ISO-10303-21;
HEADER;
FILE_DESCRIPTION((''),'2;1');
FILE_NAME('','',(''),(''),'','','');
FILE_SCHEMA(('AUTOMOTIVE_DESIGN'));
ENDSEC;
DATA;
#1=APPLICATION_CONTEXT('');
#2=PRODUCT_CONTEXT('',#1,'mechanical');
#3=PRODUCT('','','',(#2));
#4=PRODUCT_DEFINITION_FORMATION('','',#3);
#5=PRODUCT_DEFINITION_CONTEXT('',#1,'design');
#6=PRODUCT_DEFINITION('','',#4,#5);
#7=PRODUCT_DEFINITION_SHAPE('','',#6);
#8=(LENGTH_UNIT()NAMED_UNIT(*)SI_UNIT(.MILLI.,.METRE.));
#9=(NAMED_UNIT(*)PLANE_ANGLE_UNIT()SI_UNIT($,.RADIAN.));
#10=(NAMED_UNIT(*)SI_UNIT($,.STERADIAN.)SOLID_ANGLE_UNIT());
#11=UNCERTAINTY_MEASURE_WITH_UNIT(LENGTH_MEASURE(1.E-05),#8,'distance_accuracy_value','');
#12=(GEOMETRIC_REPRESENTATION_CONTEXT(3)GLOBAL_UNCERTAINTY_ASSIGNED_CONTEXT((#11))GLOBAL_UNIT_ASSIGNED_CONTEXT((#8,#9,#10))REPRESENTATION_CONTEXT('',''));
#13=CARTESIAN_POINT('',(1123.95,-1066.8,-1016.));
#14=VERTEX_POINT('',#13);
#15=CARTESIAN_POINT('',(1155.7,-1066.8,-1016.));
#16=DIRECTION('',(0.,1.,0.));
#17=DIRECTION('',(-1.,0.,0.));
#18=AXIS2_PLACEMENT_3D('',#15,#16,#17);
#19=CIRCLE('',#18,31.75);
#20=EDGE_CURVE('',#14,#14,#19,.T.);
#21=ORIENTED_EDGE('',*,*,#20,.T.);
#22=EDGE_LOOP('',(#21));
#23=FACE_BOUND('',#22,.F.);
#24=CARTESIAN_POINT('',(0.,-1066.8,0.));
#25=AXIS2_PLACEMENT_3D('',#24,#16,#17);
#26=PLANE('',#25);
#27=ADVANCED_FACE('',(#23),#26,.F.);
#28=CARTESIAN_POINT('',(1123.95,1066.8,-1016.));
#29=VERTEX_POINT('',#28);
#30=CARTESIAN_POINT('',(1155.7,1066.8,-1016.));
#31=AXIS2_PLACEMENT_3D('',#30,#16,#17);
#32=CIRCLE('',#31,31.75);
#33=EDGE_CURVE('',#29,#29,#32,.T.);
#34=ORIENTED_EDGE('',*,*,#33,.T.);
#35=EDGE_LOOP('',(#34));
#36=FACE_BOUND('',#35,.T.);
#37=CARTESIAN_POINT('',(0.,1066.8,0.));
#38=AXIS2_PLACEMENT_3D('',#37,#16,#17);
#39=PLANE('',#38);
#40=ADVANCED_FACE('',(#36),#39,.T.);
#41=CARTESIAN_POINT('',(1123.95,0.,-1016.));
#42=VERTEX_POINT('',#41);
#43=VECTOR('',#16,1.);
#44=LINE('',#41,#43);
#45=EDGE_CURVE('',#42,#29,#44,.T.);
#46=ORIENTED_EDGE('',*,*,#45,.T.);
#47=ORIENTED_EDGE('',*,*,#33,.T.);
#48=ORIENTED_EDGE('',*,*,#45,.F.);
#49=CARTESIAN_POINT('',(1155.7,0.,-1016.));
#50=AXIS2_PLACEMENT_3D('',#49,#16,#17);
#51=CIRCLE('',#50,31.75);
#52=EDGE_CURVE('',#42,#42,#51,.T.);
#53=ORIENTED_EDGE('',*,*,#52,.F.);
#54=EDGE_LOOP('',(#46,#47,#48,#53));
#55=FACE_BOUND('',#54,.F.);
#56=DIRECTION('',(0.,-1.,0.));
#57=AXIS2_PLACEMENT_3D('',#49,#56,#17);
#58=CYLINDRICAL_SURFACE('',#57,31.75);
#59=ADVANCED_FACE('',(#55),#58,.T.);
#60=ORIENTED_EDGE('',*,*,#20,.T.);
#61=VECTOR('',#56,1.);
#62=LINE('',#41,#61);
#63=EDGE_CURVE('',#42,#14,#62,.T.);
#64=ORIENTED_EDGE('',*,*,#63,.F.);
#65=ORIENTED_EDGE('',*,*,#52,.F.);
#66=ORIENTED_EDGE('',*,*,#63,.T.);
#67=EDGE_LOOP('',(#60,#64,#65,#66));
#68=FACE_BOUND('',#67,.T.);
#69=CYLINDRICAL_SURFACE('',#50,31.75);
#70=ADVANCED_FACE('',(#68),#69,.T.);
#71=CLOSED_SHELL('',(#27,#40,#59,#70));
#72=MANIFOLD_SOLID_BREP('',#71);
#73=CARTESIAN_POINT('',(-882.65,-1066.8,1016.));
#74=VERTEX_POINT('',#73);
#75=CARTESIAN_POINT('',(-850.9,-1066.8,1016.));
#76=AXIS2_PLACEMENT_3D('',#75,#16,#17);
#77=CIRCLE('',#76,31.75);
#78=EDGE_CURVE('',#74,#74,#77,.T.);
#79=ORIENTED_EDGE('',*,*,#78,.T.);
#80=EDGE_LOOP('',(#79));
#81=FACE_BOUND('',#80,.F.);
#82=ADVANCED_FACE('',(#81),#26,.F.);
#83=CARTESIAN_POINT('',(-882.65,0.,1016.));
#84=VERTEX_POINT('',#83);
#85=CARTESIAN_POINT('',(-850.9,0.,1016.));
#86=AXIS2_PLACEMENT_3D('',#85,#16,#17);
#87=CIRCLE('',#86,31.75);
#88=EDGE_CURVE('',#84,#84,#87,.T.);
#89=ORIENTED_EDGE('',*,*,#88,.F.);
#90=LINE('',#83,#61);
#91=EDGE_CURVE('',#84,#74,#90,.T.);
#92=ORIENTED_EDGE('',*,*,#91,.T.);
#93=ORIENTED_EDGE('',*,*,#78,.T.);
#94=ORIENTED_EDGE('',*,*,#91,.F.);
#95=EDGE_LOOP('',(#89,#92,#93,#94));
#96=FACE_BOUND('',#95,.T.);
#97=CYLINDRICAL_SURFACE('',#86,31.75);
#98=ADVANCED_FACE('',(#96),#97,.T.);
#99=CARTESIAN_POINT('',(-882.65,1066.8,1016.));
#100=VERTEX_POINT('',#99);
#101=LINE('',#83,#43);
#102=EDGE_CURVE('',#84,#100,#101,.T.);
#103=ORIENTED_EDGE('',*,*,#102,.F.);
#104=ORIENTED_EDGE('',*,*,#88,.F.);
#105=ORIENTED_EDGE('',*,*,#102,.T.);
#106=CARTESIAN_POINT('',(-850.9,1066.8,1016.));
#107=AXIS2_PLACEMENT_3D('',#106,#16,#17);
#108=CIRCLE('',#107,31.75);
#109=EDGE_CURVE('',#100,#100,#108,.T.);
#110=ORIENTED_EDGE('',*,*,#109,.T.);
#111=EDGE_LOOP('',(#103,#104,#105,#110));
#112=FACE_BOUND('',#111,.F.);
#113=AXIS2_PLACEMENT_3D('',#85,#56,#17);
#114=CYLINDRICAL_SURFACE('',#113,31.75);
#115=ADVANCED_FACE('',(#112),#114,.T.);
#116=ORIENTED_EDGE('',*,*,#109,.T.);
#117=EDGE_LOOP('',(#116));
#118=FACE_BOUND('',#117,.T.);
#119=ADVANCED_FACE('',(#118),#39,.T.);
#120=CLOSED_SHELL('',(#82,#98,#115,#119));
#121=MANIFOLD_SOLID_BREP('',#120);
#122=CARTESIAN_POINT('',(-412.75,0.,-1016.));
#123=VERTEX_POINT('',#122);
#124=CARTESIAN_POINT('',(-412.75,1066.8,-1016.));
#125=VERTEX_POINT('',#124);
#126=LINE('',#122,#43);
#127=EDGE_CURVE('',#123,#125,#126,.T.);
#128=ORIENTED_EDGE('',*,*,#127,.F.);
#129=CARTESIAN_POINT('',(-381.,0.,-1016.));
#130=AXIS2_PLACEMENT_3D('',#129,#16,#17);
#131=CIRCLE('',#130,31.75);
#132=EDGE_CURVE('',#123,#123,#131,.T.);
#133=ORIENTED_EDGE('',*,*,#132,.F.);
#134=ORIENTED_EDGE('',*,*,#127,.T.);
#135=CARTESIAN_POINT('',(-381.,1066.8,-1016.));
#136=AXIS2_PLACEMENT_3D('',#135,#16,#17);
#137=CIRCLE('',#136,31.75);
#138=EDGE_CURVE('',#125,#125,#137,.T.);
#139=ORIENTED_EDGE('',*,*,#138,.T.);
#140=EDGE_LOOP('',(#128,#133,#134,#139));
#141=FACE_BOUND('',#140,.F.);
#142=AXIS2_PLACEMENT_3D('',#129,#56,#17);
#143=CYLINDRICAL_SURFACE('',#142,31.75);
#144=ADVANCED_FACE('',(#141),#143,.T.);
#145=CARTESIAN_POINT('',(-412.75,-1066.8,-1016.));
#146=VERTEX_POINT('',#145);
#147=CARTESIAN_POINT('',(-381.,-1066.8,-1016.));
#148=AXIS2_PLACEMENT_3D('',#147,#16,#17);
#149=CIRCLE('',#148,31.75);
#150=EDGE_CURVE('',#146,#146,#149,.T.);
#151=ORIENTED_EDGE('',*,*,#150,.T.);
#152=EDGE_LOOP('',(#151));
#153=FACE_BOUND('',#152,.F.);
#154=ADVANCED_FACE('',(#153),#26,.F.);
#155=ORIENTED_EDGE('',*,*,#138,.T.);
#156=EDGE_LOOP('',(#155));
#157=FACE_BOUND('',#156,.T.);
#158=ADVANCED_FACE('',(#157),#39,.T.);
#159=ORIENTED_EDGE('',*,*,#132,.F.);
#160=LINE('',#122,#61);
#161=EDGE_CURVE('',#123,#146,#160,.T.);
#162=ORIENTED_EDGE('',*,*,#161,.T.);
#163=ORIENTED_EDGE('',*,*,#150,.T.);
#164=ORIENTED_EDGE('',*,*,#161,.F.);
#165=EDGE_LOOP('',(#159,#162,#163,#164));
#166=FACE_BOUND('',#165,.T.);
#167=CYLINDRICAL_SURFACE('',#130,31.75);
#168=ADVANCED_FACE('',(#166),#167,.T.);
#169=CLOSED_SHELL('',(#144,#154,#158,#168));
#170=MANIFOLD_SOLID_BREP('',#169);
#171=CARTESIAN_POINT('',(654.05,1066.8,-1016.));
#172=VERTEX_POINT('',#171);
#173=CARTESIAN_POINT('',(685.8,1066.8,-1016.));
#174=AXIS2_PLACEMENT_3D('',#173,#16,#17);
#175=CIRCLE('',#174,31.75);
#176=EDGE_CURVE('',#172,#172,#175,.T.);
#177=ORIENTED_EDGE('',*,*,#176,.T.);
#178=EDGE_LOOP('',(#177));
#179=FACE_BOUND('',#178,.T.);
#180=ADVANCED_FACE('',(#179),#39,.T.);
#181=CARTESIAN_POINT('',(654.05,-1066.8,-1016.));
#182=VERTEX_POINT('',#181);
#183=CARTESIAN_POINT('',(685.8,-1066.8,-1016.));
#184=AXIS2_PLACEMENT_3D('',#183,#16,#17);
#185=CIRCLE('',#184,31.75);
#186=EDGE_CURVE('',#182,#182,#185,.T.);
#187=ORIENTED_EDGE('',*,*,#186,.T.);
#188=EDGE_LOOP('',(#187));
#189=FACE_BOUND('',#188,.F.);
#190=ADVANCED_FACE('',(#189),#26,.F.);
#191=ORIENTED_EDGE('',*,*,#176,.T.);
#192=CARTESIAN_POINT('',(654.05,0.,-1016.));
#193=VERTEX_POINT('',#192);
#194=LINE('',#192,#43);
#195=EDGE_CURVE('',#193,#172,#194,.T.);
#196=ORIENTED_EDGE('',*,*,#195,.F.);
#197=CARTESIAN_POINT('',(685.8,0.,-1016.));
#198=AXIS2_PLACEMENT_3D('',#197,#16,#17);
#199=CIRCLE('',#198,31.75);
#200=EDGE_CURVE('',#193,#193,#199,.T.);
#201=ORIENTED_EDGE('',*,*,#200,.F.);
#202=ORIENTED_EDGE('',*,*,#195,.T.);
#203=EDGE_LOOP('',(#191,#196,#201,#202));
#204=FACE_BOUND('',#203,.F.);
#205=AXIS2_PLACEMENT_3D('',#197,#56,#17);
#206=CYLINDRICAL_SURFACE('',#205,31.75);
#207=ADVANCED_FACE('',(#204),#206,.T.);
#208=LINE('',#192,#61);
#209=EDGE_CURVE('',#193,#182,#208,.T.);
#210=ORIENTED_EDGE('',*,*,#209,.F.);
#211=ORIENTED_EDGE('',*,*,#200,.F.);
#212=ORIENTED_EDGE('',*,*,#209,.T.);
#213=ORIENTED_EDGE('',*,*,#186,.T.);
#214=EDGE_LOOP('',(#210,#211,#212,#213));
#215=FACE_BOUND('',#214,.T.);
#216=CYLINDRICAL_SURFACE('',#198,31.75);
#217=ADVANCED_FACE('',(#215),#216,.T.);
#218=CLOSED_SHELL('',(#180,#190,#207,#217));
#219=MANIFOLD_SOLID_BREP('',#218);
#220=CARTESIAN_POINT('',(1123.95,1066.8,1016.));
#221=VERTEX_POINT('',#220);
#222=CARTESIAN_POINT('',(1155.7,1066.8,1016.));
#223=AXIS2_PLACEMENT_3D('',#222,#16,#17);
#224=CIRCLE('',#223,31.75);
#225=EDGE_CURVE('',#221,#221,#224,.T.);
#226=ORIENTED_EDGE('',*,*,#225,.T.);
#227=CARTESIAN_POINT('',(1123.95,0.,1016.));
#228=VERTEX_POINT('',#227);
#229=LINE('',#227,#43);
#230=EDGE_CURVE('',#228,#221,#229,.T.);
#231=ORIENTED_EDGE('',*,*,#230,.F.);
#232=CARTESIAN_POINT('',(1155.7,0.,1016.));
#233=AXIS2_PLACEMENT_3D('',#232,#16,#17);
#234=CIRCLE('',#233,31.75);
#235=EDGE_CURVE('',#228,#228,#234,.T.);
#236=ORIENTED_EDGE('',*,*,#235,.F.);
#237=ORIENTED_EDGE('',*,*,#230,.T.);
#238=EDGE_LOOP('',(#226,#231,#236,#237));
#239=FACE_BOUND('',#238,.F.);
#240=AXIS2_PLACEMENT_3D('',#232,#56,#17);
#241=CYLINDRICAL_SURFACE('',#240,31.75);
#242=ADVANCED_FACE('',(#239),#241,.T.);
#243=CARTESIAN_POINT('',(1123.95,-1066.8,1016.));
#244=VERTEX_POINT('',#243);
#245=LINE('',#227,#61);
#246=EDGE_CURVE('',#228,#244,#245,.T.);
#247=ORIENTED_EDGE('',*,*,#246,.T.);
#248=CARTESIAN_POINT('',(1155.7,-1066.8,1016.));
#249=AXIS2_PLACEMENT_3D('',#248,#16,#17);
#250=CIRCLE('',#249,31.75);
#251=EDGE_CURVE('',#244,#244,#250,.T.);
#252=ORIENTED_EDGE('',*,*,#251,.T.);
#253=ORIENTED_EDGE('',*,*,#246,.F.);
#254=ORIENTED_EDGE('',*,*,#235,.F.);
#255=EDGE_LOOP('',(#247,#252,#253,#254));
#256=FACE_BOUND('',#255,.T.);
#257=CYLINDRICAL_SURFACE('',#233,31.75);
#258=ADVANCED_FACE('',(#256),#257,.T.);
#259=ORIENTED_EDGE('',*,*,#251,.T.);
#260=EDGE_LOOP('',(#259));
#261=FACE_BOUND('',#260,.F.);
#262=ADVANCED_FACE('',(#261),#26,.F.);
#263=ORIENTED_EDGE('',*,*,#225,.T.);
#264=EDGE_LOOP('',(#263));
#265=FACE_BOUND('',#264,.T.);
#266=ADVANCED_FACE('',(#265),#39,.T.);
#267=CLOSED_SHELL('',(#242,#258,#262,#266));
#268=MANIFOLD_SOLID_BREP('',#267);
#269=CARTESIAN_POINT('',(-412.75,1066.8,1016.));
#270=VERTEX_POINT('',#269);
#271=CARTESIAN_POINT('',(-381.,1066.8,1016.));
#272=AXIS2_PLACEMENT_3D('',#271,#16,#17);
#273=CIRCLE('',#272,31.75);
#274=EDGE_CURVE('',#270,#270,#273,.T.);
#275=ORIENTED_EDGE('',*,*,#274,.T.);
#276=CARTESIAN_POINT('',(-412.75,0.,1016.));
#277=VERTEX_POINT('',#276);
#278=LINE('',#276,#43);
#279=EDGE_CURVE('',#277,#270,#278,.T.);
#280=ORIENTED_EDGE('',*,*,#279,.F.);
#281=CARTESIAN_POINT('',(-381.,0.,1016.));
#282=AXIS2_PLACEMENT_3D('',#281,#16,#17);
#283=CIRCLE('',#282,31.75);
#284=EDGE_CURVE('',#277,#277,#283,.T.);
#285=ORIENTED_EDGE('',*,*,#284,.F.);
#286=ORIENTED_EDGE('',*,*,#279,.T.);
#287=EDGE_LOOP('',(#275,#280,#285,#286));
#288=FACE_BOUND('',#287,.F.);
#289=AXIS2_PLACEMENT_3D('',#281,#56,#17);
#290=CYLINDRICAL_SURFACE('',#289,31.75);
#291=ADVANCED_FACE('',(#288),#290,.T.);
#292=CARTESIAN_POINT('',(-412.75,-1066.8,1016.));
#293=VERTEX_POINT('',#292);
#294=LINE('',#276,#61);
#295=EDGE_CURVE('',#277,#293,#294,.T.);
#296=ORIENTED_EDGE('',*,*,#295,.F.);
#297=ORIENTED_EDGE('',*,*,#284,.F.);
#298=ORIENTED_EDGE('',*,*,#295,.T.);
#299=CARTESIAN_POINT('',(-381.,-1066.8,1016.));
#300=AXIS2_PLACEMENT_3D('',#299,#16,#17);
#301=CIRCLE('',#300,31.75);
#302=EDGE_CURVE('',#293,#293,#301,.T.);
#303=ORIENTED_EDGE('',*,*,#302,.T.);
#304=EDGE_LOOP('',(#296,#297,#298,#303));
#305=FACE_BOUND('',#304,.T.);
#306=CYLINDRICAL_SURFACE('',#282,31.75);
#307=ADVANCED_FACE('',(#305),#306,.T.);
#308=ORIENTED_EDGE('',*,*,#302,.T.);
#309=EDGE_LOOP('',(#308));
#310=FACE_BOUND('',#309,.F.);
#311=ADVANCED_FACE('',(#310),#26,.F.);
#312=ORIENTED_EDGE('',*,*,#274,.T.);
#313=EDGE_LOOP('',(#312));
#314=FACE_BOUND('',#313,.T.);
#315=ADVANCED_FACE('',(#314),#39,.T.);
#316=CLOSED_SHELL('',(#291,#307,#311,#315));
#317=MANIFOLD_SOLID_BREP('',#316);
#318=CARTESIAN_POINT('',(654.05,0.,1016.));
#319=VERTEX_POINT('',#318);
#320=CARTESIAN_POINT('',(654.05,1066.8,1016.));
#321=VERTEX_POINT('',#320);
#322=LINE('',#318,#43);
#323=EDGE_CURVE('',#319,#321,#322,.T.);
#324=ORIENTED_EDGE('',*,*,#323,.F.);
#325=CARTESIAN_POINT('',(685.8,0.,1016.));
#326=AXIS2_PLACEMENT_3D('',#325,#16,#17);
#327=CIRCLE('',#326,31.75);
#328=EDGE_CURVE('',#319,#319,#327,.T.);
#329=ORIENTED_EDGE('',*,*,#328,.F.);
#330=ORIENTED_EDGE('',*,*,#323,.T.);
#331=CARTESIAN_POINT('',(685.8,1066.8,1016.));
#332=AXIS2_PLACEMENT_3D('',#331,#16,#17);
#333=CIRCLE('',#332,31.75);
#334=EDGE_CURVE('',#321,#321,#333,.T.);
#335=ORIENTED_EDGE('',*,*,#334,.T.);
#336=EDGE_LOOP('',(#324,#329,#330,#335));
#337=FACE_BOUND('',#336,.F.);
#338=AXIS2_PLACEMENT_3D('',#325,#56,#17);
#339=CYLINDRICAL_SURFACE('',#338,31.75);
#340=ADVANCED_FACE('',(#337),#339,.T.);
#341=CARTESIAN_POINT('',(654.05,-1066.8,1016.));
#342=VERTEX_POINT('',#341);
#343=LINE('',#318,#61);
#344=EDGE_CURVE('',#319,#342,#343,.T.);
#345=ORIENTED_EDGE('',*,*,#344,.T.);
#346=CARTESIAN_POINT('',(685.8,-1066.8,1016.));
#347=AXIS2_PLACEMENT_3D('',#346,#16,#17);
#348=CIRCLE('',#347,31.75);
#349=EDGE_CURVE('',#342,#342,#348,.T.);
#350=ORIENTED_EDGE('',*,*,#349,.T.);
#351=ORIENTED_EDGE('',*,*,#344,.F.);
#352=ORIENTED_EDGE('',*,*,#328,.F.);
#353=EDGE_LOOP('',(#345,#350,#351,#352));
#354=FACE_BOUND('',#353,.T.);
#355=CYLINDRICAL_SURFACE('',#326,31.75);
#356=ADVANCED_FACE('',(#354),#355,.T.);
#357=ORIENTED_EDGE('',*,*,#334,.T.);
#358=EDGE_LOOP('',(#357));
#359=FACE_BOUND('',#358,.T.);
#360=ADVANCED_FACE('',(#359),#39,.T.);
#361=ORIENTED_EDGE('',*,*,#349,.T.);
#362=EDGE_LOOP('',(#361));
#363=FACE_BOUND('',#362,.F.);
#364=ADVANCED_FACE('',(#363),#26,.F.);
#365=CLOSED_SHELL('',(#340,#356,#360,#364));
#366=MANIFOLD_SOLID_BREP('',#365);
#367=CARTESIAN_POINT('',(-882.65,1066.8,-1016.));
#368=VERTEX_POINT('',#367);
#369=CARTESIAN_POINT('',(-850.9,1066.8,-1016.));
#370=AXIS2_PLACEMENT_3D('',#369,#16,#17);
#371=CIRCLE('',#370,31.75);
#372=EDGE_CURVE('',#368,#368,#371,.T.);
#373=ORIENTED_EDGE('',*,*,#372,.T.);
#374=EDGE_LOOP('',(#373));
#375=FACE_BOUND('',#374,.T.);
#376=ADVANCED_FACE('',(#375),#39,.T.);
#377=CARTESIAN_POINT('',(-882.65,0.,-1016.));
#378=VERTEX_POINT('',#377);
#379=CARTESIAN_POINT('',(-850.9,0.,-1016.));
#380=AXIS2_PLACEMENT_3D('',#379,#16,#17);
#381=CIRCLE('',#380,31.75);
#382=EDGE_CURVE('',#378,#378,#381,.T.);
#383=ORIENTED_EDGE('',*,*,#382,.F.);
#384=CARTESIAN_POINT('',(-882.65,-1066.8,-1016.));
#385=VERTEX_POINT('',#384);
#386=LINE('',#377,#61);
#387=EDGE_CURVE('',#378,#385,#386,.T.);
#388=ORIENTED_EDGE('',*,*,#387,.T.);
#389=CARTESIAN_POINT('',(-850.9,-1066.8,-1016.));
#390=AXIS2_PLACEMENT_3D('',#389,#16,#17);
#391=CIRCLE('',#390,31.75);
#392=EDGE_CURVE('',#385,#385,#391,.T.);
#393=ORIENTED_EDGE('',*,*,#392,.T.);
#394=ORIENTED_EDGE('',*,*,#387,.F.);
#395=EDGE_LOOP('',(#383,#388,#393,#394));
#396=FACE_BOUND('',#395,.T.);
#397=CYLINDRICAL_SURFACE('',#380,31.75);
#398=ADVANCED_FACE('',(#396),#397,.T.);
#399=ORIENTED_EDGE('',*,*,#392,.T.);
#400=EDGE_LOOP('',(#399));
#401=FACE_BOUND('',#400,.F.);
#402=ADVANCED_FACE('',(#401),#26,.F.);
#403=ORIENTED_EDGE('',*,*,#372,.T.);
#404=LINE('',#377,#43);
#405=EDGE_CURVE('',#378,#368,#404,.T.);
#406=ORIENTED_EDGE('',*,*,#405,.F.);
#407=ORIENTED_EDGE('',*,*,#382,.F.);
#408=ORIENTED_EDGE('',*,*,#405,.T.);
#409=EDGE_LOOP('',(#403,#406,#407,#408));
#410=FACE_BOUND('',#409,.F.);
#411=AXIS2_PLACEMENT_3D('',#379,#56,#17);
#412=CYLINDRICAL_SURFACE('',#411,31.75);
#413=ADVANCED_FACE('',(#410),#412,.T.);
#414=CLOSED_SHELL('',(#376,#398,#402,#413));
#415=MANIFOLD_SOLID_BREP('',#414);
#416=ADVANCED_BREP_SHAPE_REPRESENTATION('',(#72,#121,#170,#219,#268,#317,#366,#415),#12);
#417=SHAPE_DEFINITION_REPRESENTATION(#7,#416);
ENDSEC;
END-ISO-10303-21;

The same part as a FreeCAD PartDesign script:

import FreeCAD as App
import Part
import Sketcher
from FreeCAD import Vector
Q = App.Units.Quantity

doc = App.newDocument("Part")
body = doc.addObject("PartDesign::Body", "Body")
body.AllowCompound = True

sketch1 = body.newObject("Sketcher::SketchObject", "Sketch")
sketch1.AttachmentSupport = (doc.getObject("XZ_Plane"), [""])
sketch1.MapMode = "FlatFace"
sketch1.addGeometry([
    Part.Circle(Vector(-850.9, -1016, 0), Vector(0, 0, 1), 31.75),
    Part.Circle(Vector(-381, -1016, 0), Vector(0, 0, 1), 31.75),
    Part.Circle(Vector(-850.9, 1016, 0), Vector(0, 0, 1), 31.75),
    Part.Circle(Vector(1155.7, -1016, 0), Vector(0, 0, 1), 31.75),
    Part.Circle(Vector(1155.7, 1016, 0), Vector(0, 0, 1), 31.75),
    Part.Circle(Vector(-381, 1016, 0), Vector(0, 0, 1), 31.75),
    Part.Circle(Vector(685.8, -1016, 0), Vector(0, 0, 1), 31.75),
    Part.Circle(Vector(685.8, 1016, 0), Vector(0, 0, 1), 31.75),
], False)
sketch1.addConstraint([
    Sketcher.Constraint("Equal", 0, 1),
    Sketcher.Constraint("Equal", 1, 2),
    Sketcher.Constraint("Equal", 2, 3),
    Sketcher.Constraint("Equal", 3, 4),
    Sketcher.Constraint("Equal", 4, 5),
    Sketcher.Constraint("Equal", 5, 6),
    Sketcher.Constraint("Equal", 6, 7),
    Sketcher.Constraint("Symmetric", 0, 3, 2, 3, -1),
    Sketcher.Constraint("Symmetric", 3, 3, 4, 3, -1),
    Sketcher.Constraint("Symmetric", 1, 3, 5, 3, -1),
    Sketcher.Constraint("Symmetric", 6, 3, 7, 3, -1),
    Sketcher.Constraint("Horizontal", 0, 3, 1, 3),
    Sketcher.Constraint("Horizontal", 1, 3, 3, 3),
    Sketcher.Constraint("Horizontal", 3, 3, 6, 3),
    Sketcher.Constraint("Diameter", 0, Q("2.5 in")),
    Sketcher.Constraint("DistanceY", 0, 3, 2, 3, Q("80 in")),
    Sketcher.Constraint("DistanceX", 0, 3, 3, 3, Q("79 in")),
    Sketcher.Constraint("DistanceX", 1, 3, 6, 3, Q("42 in")),
    Sketcher.Constraint("DistanceX", 1, 3, -1, 1, Q("15 in")),
    Sketcher.Constraint("DistanceX", 0, 3, -1, 1, Q("33.5 in")),
])
pad1 = body.newObject("PartDesign::Pad", "Pad")
pad1.Profile = sketch1
pad1.Length = Q("84 in")
pad1.Midplane = True

doc.recompute()
